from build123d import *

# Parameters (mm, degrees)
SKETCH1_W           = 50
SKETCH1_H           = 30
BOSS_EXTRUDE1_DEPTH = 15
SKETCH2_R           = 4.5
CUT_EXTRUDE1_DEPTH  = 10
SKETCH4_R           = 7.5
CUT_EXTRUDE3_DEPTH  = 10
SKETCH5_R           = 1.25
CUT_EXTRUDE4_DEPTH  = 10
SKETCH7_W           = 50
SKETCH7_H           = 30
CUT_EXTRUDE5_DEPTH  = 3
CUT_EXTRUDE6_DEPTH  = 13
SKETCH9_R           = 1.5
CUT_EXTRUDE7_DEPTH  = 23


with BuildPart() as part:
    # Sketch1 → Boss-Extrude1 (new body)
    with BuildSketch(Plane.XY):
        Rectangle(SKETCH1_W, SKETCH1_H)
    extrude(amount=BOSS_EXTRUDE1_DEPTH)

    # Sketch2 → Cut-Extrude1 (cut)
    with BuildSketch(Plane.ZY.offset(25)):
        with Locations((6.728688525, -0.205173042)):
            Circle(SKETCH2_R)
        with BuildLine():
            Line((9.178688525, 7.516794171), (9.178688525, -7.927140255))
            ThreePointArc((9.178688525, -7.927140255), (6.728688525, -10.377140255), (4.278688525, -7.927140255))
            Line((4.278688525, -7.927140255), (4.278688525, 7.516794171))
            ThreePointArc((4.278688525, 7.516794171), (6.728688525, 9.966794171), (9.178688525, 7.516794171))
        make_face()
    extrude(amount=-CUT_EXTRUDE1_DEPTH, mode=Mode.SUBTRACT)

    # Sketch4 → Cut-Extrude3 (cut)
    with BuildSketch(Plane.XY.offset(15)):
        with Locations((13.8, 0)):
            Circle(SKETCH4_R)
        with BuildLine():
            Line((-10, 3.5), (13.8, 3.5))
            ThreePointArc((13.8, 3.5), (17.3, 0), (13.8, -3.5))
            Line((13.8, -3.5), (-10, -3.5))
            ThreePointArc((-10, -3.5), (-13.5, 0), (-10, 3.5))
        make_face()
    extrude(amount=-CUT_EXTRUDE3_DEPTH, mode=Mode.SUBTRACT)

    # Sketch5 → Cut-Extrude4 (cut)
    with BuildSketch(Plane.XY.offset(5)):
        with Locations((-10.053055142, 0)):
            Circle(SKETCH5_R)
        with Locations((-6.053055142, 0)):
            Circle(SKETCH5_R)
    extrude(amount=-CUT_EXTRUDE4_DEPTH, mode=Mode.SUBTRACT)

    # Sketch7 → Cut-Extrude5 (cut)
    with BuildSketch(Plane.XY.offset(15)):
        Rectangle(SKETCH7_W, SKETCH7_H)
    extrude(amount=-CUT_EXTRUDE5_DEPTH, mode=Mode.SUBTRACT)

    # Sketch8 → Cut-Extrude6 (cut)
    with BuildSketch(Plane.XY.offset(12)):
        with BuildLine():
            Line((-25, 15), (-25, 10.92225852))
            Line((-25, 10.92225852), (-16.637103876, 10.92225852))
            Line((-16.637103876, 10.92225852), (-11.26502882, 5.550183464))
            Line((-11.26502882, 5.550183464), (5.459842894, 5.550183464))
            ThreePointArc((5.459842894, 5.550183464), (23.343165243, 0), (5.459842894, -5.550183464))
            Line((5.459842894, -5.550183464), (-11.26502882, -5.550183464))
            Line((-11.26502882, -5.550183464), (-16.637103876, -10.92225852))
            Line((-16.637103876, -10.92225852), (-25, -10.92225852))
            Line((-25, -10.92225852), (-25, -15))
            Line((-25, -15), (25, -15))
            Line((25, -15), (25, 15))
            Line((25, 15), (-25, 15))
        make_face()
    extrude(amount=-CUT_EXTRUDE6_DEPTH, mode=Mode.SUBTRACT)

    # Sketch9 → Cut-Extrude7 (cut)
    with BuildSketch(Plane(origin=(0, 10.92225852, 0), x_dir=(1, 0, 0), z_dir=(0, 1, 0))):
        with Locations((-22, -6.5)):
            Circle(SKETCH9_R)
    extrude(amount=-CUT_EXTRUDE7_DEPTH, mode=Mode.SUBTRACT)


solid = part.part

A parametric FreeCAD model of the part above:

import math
import FreeCAD as App
import Part
import Sketcher

doc = App.newDocument("Part")
body = doc.addObject("PartDesign::Body", "Body")

sketch1 = body.newObject("Sketcher::SketchObject", "Sketch")
sketch1.AttachmentSupport = (doc.getObject("XY_Plane"), [""])
sketch1.MapMode = "FlatFace"
sketch1.addGeometry(Part.LineSegment(App.Vector(-25, 15, 0), App.Vector(-25, -15, 0)), False)
sketch1.addGeometry(Part.LineSegment(App.Vector(-25, -15, 0), App.Vector(25, -15, 0)), False)
sketch1.addGeometry(Part.LineSegment(App.Vector(25, -15, 0), App.Vector(25, 15, 0)), False)
sketch1.addGeometry(Part.LineSegment(App.Vector(25, 15, 0), App.Vector(-25, 15, 0)), False)
sketch1.addConstraint(Sketcher.Constraint("Coincident", 0, 2, 1, 1))
sketch1.addConstraint(Sketcher.Constraint("Coincident", 1, 2, 2, 1))
sketch1.addConstraint(Sketcher.Constraint("Coincident", 2, 2, 3, 1))
sketch1.addConstraint(Sketcher.Constraint("Coincident", 3, 2, 0, 1))
sketch1.addConstraint(Sketcher.Constraint("Vertical", 0))
sketch1.addConstraint(Sketcher.Constraint("Horizontal", 1))
sketch1.addConstraint(Sketcher.Constraint("Vertical", 2))
sketch1.addConstraint(Sketcher.Constraint("Horizontal", 3))
sketch1.addConstraint(Sketcher.Constraint("Symmetric", 0, 2, 2, 2, -1, 1))
sketch1.addConstraint(Sketcher.Constraint("DistanceX", 1, 1, 1, 2, 50.0))
sketch1.addConstraint(Sketcher.Constraint("DistanceY", 0, 2, 0, 1, 30.0))
pad1 = body.newObject("PartDesign::Pad", "Pad")
pad1.Profile = sketch1
pad1.Length = 15

sketch2 = body.newObject("Sketcher::SketchObject", "Sketch001")
sketch2.AttachmentSupport = (doc.getObject("YZ_Plane"), [""])
sketch2.MapMode = "FlatFace"
sketch2.AttachmentOffset = App.Placement(App.Vector(0, 0, -25), App.Rotation())
sketch2.addGeometry(Part.ArcOfCircle(Part.Circle(App.Vector(-0.2, 6.7, 0), App.Vector(0, 0, 1), 4.5), math.radians(33), math.radians(147)), False)
sketch2.addGeometry(Part.LineSegment(App.Vector(3.6, 9.2, 0), App.Vector(7.5, 9.2, 0)), False)
sketch2.addGeometry(Part.ArcOfCircle(Part.Circle(App.Vector(7.5, 6.7, 0), App.Vector(0, 0, 1), 2.5), math.radians(-90), math.radians(90)), False)
sketch2.addGeometry(Part.LineSegment(App.Vector(7.5, 4.3, 0), App.Vector(3.6, 4.3, 0)), False)
sketch2.addGeometry(Part.ArcOfCircle(Part.Circle(App.Vector(-0.2, 6.7, 0), App.Vector(0, 0, 1), 4.5), math.radians(-147), math.radians(-33)), False)
sketch2.addGeometry(Part.LineSegment(App.Vector(-4, 4.3, 0), App.Vector(-7.9, 4.3, 0)), False)
sketch2.addGeometry(Part.ArcOfCircle(Part.Circle(App.Vector(-7.9, 6.7, 0), App.Vector(0, 0, 1), 2.5), math.radians(90), math.radians(270)), False)
sketch2.addGeometry(Part.LineSegment(App.Vector(-7.9, 9.2, 0), App.Vector(-4, 9.2, 0)), False)
sketch2.addConstraint(Sketcher.Constraint("Coincident", 0, 1, 1, 1))
sketch2.addConstraint(Sketcher.Constraint("Tangent", 1, 2, 2, 2))
sketch2.addConstraint(Sketcher.Constraint("Tangent", 2, 1, 3, 1))
sketch2.addConstraint(Sketcher.Constraint("Coincident", 3, 2, 4, 2))
sketch2.addConstraint(Sketcher.Constraint("Coincident", 4, 1, 5, 1))
sketch2.addConstraint(Sketcher.Constraint("Tangent", 5, 2, 6, 2))
sketch2.addConstraint(Sketcher.Constraint("Tangent", 6, 1, 7, 1))
sketch2.addConstraint(Sketcher.Constraint("Coincident", 7, 2, 0, 2))
sketch2.addConstraint(Sketcher.Constraint("Horizontal", 1))
sketch2.addConstraint(Sketcher.Constraint("Horizontal", 3))
sketch2.addConstraint(Sketcher.Constraint("Horizontal", 5))
sketch2.addConstraint(Sketcher.Constraint("Horizontal", 7))
sketch2.addConstraint(Sketcher.Constraint("Coincident", 4, 3, 0, 3))
sketch2.addConstraint(Sketcher.Constraint("Equal", 0, 4))
sketch2.addConstraint(Sketcher.Constraint("Equal", 2, 6))
sketch2.addConstraint(Sketcher.Constraint("Horizontal", 0, 3, 2, 3))
sketch2.addConstraint(Sketcher.Constraint("Horizontal", 4, 3, 6, 3))
sketch2.addConstraint(Sketcher.Constraint("Equal", 3, 5))
sketch2.addConstraint(Sketcher.Constraint("Radius", 0, 4.5))
sketch2.addConstraint(Sketcher.Constraint("Radius", 2, 2.45))
sketch2.addConstraint(Sketcher.Constraint("DistanceX", 1, 1, 1, 2, 3.947381))
sketch2.addConstraint(Sketcher.Constraint("DistanceY", -1, 1, 0, 3, 6.728689))
sketch2.addConstraint(Sketcher.Constraint("DistanceX", 6, 3, -1, 1, 7.92714))
pocket1 = body.newObject("PartDesign::Pocket", "Pocket")
pocket1.Profile = sketch2
pocket1.Length = 10
pocket1.Reversed = True

sketch3 = body.newObject("Sketcher::SketchObject", "Sketch002")
sketch3.AttachmentSupport = (doc.getObject("XY_Plane"), [""])
sketch3.MapMode = "FlatFace"
sketch3.AttachmentOffset = App.Placement(App.Vector(0, 0, 15), App.Rotation())
sketch3.addGeometry(Part.ArcOfCircle(Part.Circle(App.Vector(13.8, 0, 0), App.Vector(0, 0, 1), 7.5), math.radians(-152), math.radians(152)), False)
sketch3.addGeometry(Part.LineSegment(App.Vector(7.2, 3.5, 0), App.Vector(-10, 3.5, 0)), False)
sketch3.addGeometry(Part.ArcOfCircle(Part.Circle(App.Vector(-10, 0, 0), App.Vector(0, 0, 1), 3.5), math.radians(90), math.radians(270)), False)
sketch3.addGeometry(Part.LineSegment(App.Vector(-10, -3.5, 0), App.Vector(7.2, -3.5, 0)), False)
sketch3.addConstraint(Sketcher.Constraint("Coincident", 0, 2, 1, 1))
sketch3.addConstraint(Sketcher.Constraint("Tangent", 1, 2, 2, 1))
sketch3.addConstraint(Sketcher.Constraint("Tangent", 2, 2, 3, 1))
sketch3.addConstraint(Sketcher.Constraint("Coincident", 3, 2, 0, 1))
sketch3.addConstraint(Sketcher.Constraint("Horizontal", 1))
sketch3.addConstraint(Sketcher.Constraint("Horizontal", 3))
sketch3.addConstraint(Sketcher.Constraint("Symmetric", 0, 2, 3, 2, -1))
sketch3.addConstraint(Sketcher.Constraint("Radius", 0, 7.5))
sketch3.addConstraint(Sketcher.Constraint("Radius", 2, 3.5))
sketch3.addConstraint(Sketcher.Constraint("DistanceX", 2, 3, -1, 1, 10.0))
sketch3.addConstraint(Sketcher.Constraint("DistanceX", -1, 1, 0, 3, 13.8))
pocket2 = body.newObject("PartDesign::Pocket", "Pocket001")
pocket2.Profile = sketch3
pocket2.Length = 10

sketch4 = body.newObject("Sketcher::SketchObject", "Sketch003")
sketch4.AttachmentSupport = (doc.getObject("XY_Plane"), [""])
sketch4.MapMode = "FlatFace"
sketch4.AttachmentOffset = App.Placement(App.Vector(0, 0, 5), App.Rotation())
sketch4.addGeometry(Part.Circle(App.Vector(-10.1, 0, 0), App.Vector(0, 0, 1), 1.2), False)
sketch4.addGeometry(Part.Circle(App.Vector(-6.1, 0, 0), App.Vector(0, 0, 1), 1.2), False)
sketch4.addConstraint(Sketcher.Constraint("Equal", 0, 1))
sketch4.addConstraint(Sketcher.Constraint("PointOnObject", 0, 3, -1))
sketch4.addConstraint(Sketcher.Constraint("PointOnObject", 1, 3, -1))
sketch4.addConstraint(Sketcher.Constraint("Diameter", 0, 2.5))
sketch4.addConstraint(Sketcher.Constraint("DistanceX", 0, 3, 1, 3, 4.0))
sketch4.addConstraint(Sketcher.Constraint("DistanceX", 0, 3, -1, 1, 10.053055))
pocket3 = body.newObject("PartDesign::Pocket", "Pocket002")
pocket3.Profile = sketch4
pocket3.Length = 10

sketch5 = body.newObject("Sketcher::SketchObject", "Sketch004")
sketch5.AttachmentSupport = (doc.getObject("XY_Plane"), [""])
sketch5.MapMode = "FlatFace"
sketch5.AttachmentOffset = App.Placement(App.Vector(0, 0, 15), App.Rotation())
sketch5.addGeometry(Part.LineSegment(App.Vector(-25, 15, 0), App.Vector(-25, -15, 0)), False)
sketch5.addGeometry(Part.LineSegment(App.Vector(-25, -15, 0), App.Vector(25, -15, 0)), False)
sketch5.addGeometry(Part.LineSegment(App.Vector(25, -15, 0), App.Vector(25, 15, 0)), False)
sketch5.addGeometry(Part.LineSegment(App.Vector(25, 15, 0), App.Vector(-25, 15, 0)), False)
sketch5.addConstraint(Sketcher.Constraint("Coincident", 0, 2, 1, 1))
sketch5.addConstraint(Sketcher.Constraint("Coincident", 1, 2, 2, 1))
sketch5.addConstraint(Sketcher.Constraint("Coincident", 2, 2, 3, 1))
sketch5.addConstraint(Sketcher.Constraint("Coincident", 3, 2, 0, 1))
sketch5.addConstraint(Sketcher.Constraint("Vertical", 0))
sketch5.addConstraint(Sketcher.Constraint("Horizontal", 1))
sketch5.addConstraint(Sketcher.Constraint("Vertical", 2))
sketch5.addConstraint(Sketcher.Constraint("Horizontal", 3))
sketch5.addConstraint(Sketcher.Constraint("Symmetric", 0, 2, 2, 2, -1, 1))
sketch5.addConstraint(Sketcher.Constraint("DistanceX", 1, 1, 1, 2, 50.0))
sketch5.addConstraint(Sketcher.Constraint("DistanceY", 0, 2, 0, 1, 30.0))
pocket4 = body.newObject("PartDesign::Pocket", "Pocket003")
pocket4.Profile = sketch5
pocket4.Length = 3

sketch6 = body.newObject("Sketcher::SketchObject", "Sketch005")
sketch6.AttachmentSupport = (doc.getObject("XY_Plane"), [""])
sketch6.MapMode = "FlatFace"
sketch6.AttachmentOffset = App.Placement(App.Vector(0, 0, 12), App.Rotation())
sketch6.addGeometry(Part.LineSegment(App.Vector(-25, 15, 0), App.Vector(-25, 10.9, 0)), False)
sketch6.addGeometry(Part.LineSegment(App.Vector(-25, 10.9, 0), App.Vector(-16.6, 10.9, 0)), False)
sketch6.addGeometry(Part.LineSegment(App.Vector(-16.6, 10.9, 0), App.Vector(-11.3, 5.6, 0)), False)
sketch6.addGeometry(Part.LineSegment(App.Vector(-11.3, 5.6, 0), App.Vector(5.5, 5.6, 0)), False)
sketch6.addGeometry(Part.ArcOfCircle(Part.Circle(App.Vector(13.5, 0, 0), App.Vector(0, 0, 1), 9.8), math.radians(-146), math.radians(146)), False)
sketch6.addGeometry(Part.LineSegment(App.Vector(5.5, -5.6, 0), App.Vector(-11.3, -5.6, 0)), False)
sketch6.addGeometry(Part.LineSegment(App.Vector(-11.3, -5.6, 0), App.Vector(-16.6, -10.9, 0)), False)
sketch6.addGeometry(Part.LineSegment(App.Vector(-16.6, -10.9, 0), App.Vector(-25, -10.9, 0)), False)
sketch6.addGeometry(Part.LineSegment(App.Vector(-25, -10.9, 0), App.Vector(-25, -15, 0)), False)
sketch6.addGeometry(Part.LineSegment(App.Vector(-25, -15, 0), App.Vector(25, -15, 0)), False)
sketch6.addGeometry(Part.LineSegment(App.Vector(25, -15, 0), App.Vector(25, 15, 0)), False)
sketch6.addGeometry(Part.LineSegment(App.Vector(25, 15, 0), App.Vector(-25, 15, 0)), False)
sketch6.addConstraint(Sketcher.Constraint("Coincident", 0, 2, 1, 1))
sketch6.addConstraint(Sketcher.Constraint("Coincident", 1, 2, 2, 1))
sketch6.addConstraint(Sketcher.Constraint("Coincident", 2, 2, 3, 1))
sketch6.addConstraint(Sketcher.Constraint("Coincident", 3, 2, 4, 2))
sketch6.addConstraint(Sketcher.Constraint("Coincident", 4, 1, 5, 1))
sketch6.addConstraint(Sketcher.Constraint("Coincident", 5, 2, 6, 1))
sketch6.addConstraint(Sketcher.Constraint("Coincident", 6, 2, 7, 1))
sketch6.addConstraint(Sketcher.Constraint("Coincident", 7, 2, 8, 1))
sketch6.addConstraint(Sketcher.Constraint("Coincident", 8, 2, 9, 1))
sketch6.addConstraint(Sketcher.Constraint("Coincident", 9, 2, 10, 1))
sketch6.addConstraint(Sketcher.Constraint("Coincident", 10, 2, 11, 1))
sketch6.addConstraint(Sketcher.Constraint("Coincident", 11, 2, 0, 1))
sketch6.addConstraint(Sketcher.Constraint("Vertical", 0))
sketch6.addConstraint(Sketcher.Constraint("Horizontal", 1))
sketch6.addConstraint(Sketcher.Constraint("Horizontal", 3))
sketch6.addConstraint(Sketcher.Constraint("Horizontal", 5))
sketch6.addConstraint(Sketcher.Constraint("Horizontal", 7))
sketch6.addConstraint(Sketcher.Constraint("Vertical", 8))
sketch6.addConstraint(Sketcher.Constraint("Horizontal", 9))
sketch6.addConstraint(Sketcher.Constraint("Vertical", 10))
sketch6.addConstraint(Sketcher.Constraint("Horizontal", 11))
sketch6.addConstraint(Sketcher.Constraint("Symmetric", 8, 2, 10, 2, -1, 1))
sketch6.addConstraint(Sketcher.Constraint("Symmetric", 3, 2, 4, 1, -1))
sketch6.addConstraint(Sketcher.Constraint("Symmetric", 1, 2, 6, 2, -1))
sketch6.addConstraint(Sketcher.Constraint("Perpendicular", 2, 6))
sketch6.addConstraint(Sketcher.Constraint("Vertical", 2, 2, 5, 2))
sketch6.addConstraint(Sketcher.Constraint("Vertical", 0, 2, 7, 2))
sketch6.addConstraint(Sketcher.Constraint("DistanceX", 9, 1, 9, 2, 50.0))
sketch6.addConstraint(Sketcher.Constraint("DistanceY", 10, 1, 10, 2, 30.0))
sketch6.addConstraint(Sketcher.Constraint("Radius", 4, 9.802926))
sketch6.addConstraint(Sketcher.Constraint("DistanceX", 3, 1, 3, 2, 16.724872))
sketch6.addConstraint(Sketcher.Constraint("DistanceY", 0, 2, 0, 1, 4.077741))
sketch6.addConstraint(Sketcher.Constraint("Distance", 2, 7.597261))
sketch6.addConstraint(Sketcher.Constraint("DistanceX", 1, 1, 1, 2, 8.362896))
pocket5 = body.newObject("PartDesign::Pocket", "Pocket004")
pocket5.Profile = sketch6
pocket5.Length = 13

sketch7 = body.newObject("Sketcher::SketchObject", "Sketch006")
sketch7.AttachmentSupport = (doc.getObject("XZ_Plane"), [""])
sketch7.MapMode = "FlatFace"
sketch7.AttachmentOffset = App.Placement(App.Vector(0, 0, -10.922259), App.Rotation())
sketch7.addGeometry(Part.Circle(App.Vector(-22, 6.5, 0), App.Vector(0, 0, 1), 1.5), False)
sketch7.addConstraint(Sketcher.Constraint("Diameter", 0, 3.0))
sketch7.addConstraint(Sketcher.Constraint("DistanceX", 0, 3, -1, 1, 22.0))
sketch7.addConstraint(Sketcher.Constraint("DistanceY", -1, 1, 0, 3, 6.5))
pocket6 = body.newObject("PartDesign::Pocket", "Pocket005")
pocket6.Profile = sketch7
pocket6.Length = 23
pocket6.Reversed = True

doc.recompute()
